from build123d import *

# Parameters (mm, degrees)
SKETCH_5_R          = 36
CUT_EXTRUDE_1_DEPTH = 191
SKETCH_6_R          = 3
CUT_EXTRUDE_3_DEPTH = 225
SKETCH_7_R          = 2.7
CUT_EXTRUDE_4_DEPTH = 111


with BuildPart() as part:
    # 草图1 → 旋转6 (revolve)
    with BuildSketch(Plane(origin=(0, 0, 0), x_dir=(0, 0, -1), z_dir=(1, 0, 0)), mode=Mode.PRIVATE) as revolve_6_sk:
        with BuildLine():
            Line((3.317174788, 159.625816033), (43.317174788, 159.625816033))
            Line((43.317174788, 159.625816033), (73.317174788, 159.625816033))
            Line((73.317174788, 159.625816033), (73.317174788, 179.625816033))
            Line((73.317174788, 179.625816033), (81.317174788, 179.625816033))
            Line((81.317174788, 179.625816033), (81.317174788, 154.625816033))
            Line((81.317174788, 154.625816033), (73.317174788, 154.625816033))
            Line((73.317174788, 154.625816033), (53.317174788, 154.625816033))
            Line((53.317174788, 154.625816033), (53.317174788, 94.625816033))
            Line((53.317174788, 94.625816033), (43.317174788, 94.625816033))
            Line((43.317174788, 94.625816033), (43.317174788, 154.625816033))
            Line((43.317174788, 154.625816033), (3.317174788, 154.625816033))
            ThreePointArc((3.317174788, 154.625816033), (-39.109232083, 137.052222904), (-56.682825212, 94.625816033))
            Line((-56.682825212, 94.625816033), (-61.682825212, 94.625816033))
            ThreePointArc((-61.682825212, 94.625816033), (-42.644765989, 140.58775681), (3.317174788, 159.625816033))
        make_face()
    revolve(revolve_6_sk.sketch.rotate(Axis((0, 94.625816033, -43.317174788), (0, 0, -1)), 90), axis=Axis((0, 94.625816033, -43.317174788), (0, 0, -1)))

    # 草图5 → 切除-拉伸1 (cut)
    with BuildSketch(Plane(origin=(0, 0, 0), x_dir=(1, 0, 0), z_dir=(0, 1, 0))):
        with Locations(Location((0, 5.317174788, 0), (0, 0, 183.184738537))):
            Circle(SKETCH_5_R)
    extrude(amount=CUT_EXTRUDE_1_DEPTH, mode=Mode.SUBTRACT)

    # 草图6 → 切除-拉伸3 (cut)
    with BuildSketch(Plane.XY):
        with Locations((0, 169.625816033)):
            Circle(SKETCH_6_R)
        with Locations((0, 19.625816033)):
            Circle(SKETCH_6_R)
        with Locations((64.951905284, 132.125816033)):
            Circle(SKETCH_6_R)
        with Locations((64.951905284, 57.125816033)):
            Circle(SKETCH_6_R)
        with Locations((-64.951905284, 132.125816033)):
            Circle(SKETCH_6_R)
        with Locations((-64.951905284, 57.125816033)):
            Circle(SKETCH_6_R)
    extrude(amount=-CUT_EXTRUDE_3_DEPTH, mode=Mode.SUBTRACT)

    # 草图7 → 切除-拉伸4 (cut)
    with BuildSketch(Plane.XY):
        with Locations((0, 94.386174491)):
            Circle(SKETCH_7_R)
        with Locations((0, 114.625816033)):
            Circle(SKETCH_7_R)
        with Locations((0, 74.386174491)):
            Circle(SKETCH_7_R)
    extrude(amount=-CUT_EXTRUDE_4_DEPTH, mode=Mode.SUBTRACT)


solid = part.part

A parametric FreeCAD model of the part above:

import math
import FreeCAD as App
import Part
import Sketcher
from FreeCAD import Vector
Q = App.Units.Quantity

doc = App.newDocument("Part")
body = doc.addObject("PartDesign::Body", "Body")

# Sketch on YZ plane
sketch1 = doc.addObject("Sketcher::SketchObject", "Sketch")
body.addObject(sketch1)
sketch1.AttachmentSupport = (doc.YZ_Plane, [""])
sketch1.MapMode = "FlatFace"
sketch1.addGeometry(Part.LineSegment(Vector(160, -73, 0), Vector(160, -3, 0)), False)
sketch1.addGeometry(Part.ArcOfCircle(Part.Circle(Vector(95, -3, 0), Vector(0, 0, 1), 65), math.radians(0), math.radians(90)), False)
sketch1.addGeometry(Part.LineSegment(Vector(95, 62, 0), Vector(95, 57, 0)), False)
sketch1.addGeometry(Part.ArcOfCircle(Part.Circle(Vector(95, -3, 0), Vector(0, 0, 1), 60), math.radians(0), math.radians(90)), False)
sketch1.addGeometry(Part.LineSegment(Vector(155, -3, 0), Vector(155, -43, 0)), False)
sketch1.addGeometry(Part.LineSegment(Vector(155, -43, 0), Vector(95, -43, 0)), False)
sketch1.addGeometry(Part.LineSegment(Vector(95, -43, 0), Vector(95, -53, 0)), False)
sketch1.addGeometry(Part.LineSegment(Vector(95, -53, 0), Vector(155, -53, 0)), False)
sketch1.addGeometry(Part.LineSegment(Vector(155, -53, 0), Vector(155, -81, 0)), False)
sketch1.addGeometry(Part.LineSegment(Vector(155, -81, 0), Vector(180, -81, 0)), False)
sketch1.addGeometry(Part.LineSegment(Vector(180, -81, 0), Vector(180, -73, 0)), False)
sketch1.addGeometry(Part.LineSegment(Vector(180, -73, 0), Vector(160, -73, 0)), False)
sketch1.addGeometry(Part.LineSegment(Vector(95, 62, 0), Vector(95, -81, 0)), True)  # axis
sketch1.addConstraint(Sketcher.Constraint("Tangent", 0, 2, 1, 1))
sketch1.addConstraint(Sketcher.Constraint("Coincident", 1, 2, 2, 1))
sketch1.addConstraint(Sketcher.Constraint("Coincident", 2, 2, 3, 2))
sketch1.addConstraint(Sketcher.Constraint("Tangent", 3, 1, 4, 1))
sketch1.addConstraint(Sketcher.Constraint("Coincident", 4, 2, 5, 1))
sketch1.addConstraint(Sketcher.Constraint("Coincident", 5, 2, 6, 1))
sketch1.addConstraint(Sketcher.Constraint("Coincident", 6, 2, 7, 1))
sketch1.addConstraint(Sketcher.Constraint("Coincident", 7, 2, 8, 1))
sketch1.addConstraint(Sketcher.Constraint("Coincident", 8, 2, 9, 1))
sketch1.addConstraint(Sketcher.Constraint("Coincident", 9, 2, 10, 1))
sketch1.addConstraint(Sketcher.Constraint("Coincident", 10, 2, 11, 1))
sketch1.addConstraint(Sketcher.Constraint("Coincident", 11, 2, 0, 1))
sketch1.addConstraint(Sketcher.Constraint("Vertical", 0))
sketch1.addConstraint(Sketcher.Constraint("Vertical", 2))
sketch1.addConstraint(Sketcher.Constraint("Vertical", 4))
sketch1.addConstraint(Sketcher.Constraint("Horizontal", 5))
sketch1.addConstraint(Sketcher.Constraint("Vertical", 6))
sketch1.addConstraint(Sketcher.Constraint("Horizontal", 7))
sketch1.addConstraint(Sketcher.Constraint("Vertical", 8))
sketch1.addConstraint(Sketcher.Constraint("Horizontal", 9))
sketch1.addConstraint(Sketcher.Constraint("Vertical", 10))
sketch1.addConstraint(Sketcher.Constraint("Horizontal", 11))
sketch1.addConstraint(Sketcher.Constraint("Vertical", 12))
sketch1.addConstraint(Sketcher.Constraint("Coincident", 3, 3, 1, 3))
sketch1.addConstraint(Sketcher.Constraint("Coincident", 12, 1, 1, 2))
sketch1.addConstraint(Sketcher.Constraint("Horizontal", 9, 2, 12, 2))
sketch1.addConstraint(Sketcher.Constraint("Vertical", 3, 3, 1, 2))
sketch1.addConstraint(Sketcher.Constraint("Vertical", 2, 2, 5, 2))
sketch1.addConstraint(Sketcher.Constraint("Vertical", 4, 2, 7, 2))
sketch1.addConstraint(Sketcher.Constraint("Radius", 1, Q("65 mm")))
sketch1.addConstraint(Sketcher.Constraint("Radius", 3, Q("60 mm")))
sketch1.addConstraint(Sketcher.Constraint("DistanceX", 9, 1, 9, 2, Q("25 mm")))
sketch1.addConstraint(Sketcher.Constraint("DistanceY", 0, 1, 0, 2, Q("70 mm")))
sketch1.addConstraint(Sketcher.Constraint("DistanceY", 4, 2, 4, 1, Q("40 mm")))
sketch1.addConstraint(Sketcher.Constraint("DistanceY", 6, 2, 6, 1, Q("10 mm")))
sketch1.addConstraint(Sketcher.Constraint("DistanceY", 8, 2, 8, 1, Q("28 mm")))
sketch1.addConstraint(Sketcher.Constraint("DistanceX", -1, 1, 1, 3, Q("94.625816 mm")))
sketch1.addConstraint(Sketcher.Constraint("DistanceY", 1, 3, -1, 1, Q("3.317175 mm")))
revolution = doc.addObject("PartDesign::Revolution", "Revolution")
body.addObject(revolution)
revolution.Profile = sketch1
revolution.ReferenceAxis = (sketch1, ["Axis0"])
revolution.Angle = 360

# Sketch on XZ plane
sketch2 = doc.addObject("Sketcher::SketchObject", "Sketch001")
body.addObject(sketch2)
sketch2.AttachmentSupport = (doc.XZ_Plane, [""])
sketch2.MapMode = "FlatFace"
sketch2.addGeometry(Part.Circle(Vector(0, -5, 0), Vector(0, 0, 1), 36), False)
sketch2.addConstraint(Sketcher.Constraint("PointOnObject", 0, 3, -2))
sketch2.addConstraint(Sketcher.Constraint("Diameter", 0, Q("72 mm")))
sketch2.addConstraint(Sketcher.Constraint("DistanceY", 0, 3, -1, 1, Q("5.317175 mm")))
pocket1 = doc.addObject("PartDesign::Pocket", "Pocket")
body.addObject(pocket1)
pocket1.Profile = sketch2
pocket1.Length = 191

# Sketch on XY plane
sketch3 = doc.addObject("Sketcher::SketchObject", "Sketch002")
body.addObject(sketch3)
sketch3.AttachmentSupport = (doc.XY_Plane, [""])
sketch3.MapMode = "FlatFace"
sketch3.addGeometry(Part.Circle(Vector(0, 169.6, 0), Vector(0, 0, 1), 3), False)
sketch3.addGeometry(Part.Circle(Vector(0, 19.6, 0), Vector(0, 0, 1), 3), False)
sketch3.addGeometry(Part.Circle(Vector(65, 132.1, 0), Vector(0, 0, 1), 3), False)
sketch3.addGeometry(Part.Circle(Vector(65, 57.1, 0), Vector(0, 0, 1), 3), False)
sketch3.addGeometry(Part.Circle(Vector(-65, 132.1, 0), Vector(0, 0, 1), 3), False)
sketch3.addGeometry(Part.Circle(Vector(-65, 57.1, 0), Vector(0, 0, 1), 3), False)
sketch3.addConstraint(Sketcher.Constraint("Equal", 0, 1))
sketch3.addConstraint(Sketcher.Constraint("Equal", 1, 2))
sketch3.addConstraint(Sketcher.Constraint("Equal", 2, 3))
sketch3.addConstraint(Sketcher.Constraint("Equal", 3, 4))
sketch3.addConstraint(Sketcher.Constraint("Equal", 4, 5))
sketch3.addConstraint(Sketcher.Constraint("Symmetric", 2, 3, 4, 3, -2))
sketch3.addConstraint(Sketcher.Constraint("Symmetric", 3, 3, 5, 3, -2))
sketch3.addConstraint(Sketcher.Constraint("PointOnObject", 0, 3, -2))
sketch3.addConstraint(Sketcher.Constraint("PointOnObject", 1, 3, -2))
sketch3.addConstraint(Sketcher.Constraint("Vertical", 2, 3, 3, 3))
sketch3.addConstraint(Sketcher.Constraint("Diameter", 0, Q("6 mm")))
sketch3.addConstraint(Sketcher.Constraint("DistanceY", 1, 3, 0, 3, Q("150 mm")))
sketch3.addConstraint(Sketcher.Constraint("DistanceY", 3, 3, 2, 3, Q("75 mm")))
sketch3.addConstraint(Sketcher.Constraint("DistanceY", 2, 3, 0, 3, Q("37.5 mm")))
sketch3.addConstraint(Sketcher.Constraint("DistanceX", 4, 3, 2, 3, Q("129.903811 mm")))
sketch3.addConstraint(Sketcher.Constraint("DistanceY", -1, 1, 0, 3, Q("169.625816 mm")))
pocket2 = doc.addObject("PartDesign::Pocket", "Pocket001")
body.addObject(pocket2)
pocket2.Profile = sketch3
pocket2.Length = 225

# Sketch on XY plane
sketch4 = doc.addObject("Sketcher::SketchObject", "Sketch003")
body.addObject(sketch4)
sketch4.AttachmentSupport = (doc.XY_Plane, [""])
sketch4.MapMode = "FlatFace"
sketch4.addGeometry(Part.Circle(Vector(0, 94.4, 0), Vector(0, 0, 1), 2.7), False)
sketch4.addGeometry(Part.Circle(Vector(0, 114.6, 0), Vector(0, 0, 1), 2.7), False)
sketch4.addGeometry(Part.Circle(Vector(0, 74.4, 0), Vector(0, 0, 1), 2.7), False)
sketch4.addConstraint(Sketcher.Constraint("Equal", 0, 1))
sketch4.addConstraint(Sketcher.Constraint("Equal", 1, 2))
sketch4.addConstraint(Sketcher.Constraint("PointOnObject", 0, 3, -2))
sketch4.addConstraint(Sketcher.Constraint("PointOnObject", 1, 3, -2))
sketch4.addConstraint(Sketcher.Constraint("PointOnObject", 2, 3, -2))
sketch4.addConstraint(Sketcher.Constraint("Diameter", 0, Q("5.4 mm")))
sketch4.addConstraint(Sketcher.Constraint("DistanceY", 2, 3, 0, 3, Q("20 mm")))
sketch4.addConstraint(Sketcher.Constraint("DistanceY", 0, 3, 1, 3, Q("20.239642 mm")))
sketch4.addConstraint(Sketcher.Constraint("DistanceY", -1, 1, 0, 3, Q("94.386174 mm")))
pocket3 = doc.addObject("PartDesign::Pocket", "Pocket002")
body.addObject(pocket3)
pocket3.Profile = sketch4
pocket3.Length = 111

doc.recompute()
